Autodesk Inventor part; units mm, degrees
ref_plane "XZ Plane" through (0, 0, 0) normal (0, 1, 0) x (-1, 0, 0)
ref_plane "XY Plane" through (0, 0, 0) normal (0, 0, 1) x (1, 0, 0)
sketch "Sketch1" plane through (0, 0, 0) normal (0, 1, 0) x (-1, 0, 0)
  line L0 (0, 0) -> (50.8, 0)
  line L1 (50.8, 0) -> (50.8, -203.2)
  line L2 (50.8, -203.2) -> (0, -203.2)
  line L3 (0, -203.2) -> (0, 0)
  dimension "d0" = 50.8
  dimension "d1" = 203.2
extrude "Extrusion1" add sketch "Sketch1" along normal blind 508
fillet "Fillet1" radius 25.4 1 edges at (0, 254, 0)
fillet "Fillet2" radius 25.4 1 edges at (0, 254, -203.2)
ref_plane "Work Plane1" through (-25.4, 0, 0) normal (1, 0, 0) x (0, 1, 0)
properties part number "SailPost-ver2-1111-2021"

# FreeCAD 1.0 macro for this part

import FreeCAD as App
import Part
import Sketcher

V = App.Vector
Q = App.Units.Quantity


def edges_at(feature, points):
    """Names of the edges that pass closest to the given points."""
    edges = feature.Shape.Edges
    near = lambda p: min(range(len(edges)), key=lambda i: edges[i].distToShape(Part.Vertex(*p))[0])
    return sorted({f"Edge{near(p) + 1}" for p in points})


def add_polygon(sketch, points):
    """Adds a closed chain of lines whose ends are joined by coincident constraints."""
    first, n = sketch.GeometryCount, len(points)
    for a, b in zip(points, points[1:] + points[:1]):
        sketch.addGeometry(Part.LineSegment(App.Vector(*a, 0), App.Vector(*b, 0)), False)
    for i in range(n):
        sketch.addConstraint(Sketcher.Constraint("Coincident", first + i, 2, first + (i + 1) % n, 1))

doc = App.newDocument("Part")
params = doc.addObject("Spreadsheet::Sheet", "Params")
for row, (alias, value) in enumerate([
    ("sketch1_width", "2 in"),
    ("sketch1_height", "8 in"),
    ("pad1_length", "20 in"),
    ("fillet_radius", "1 in"),
    ("fillet2_radius", "1 in"),
], start=1):
    params.set(f"A{row}", alias)
    params.set(f"B{row}", "=" + value)
    params.setAlias(f"B{row}", alias)

body = doc.addObject("PartDesign::Body", "Body")

# Sketch on XZ plane
sketch1 = body.newObject("Sketcher::SketchObject", "Sketch")
sketch1.AttachmentSupport = (doc.getObject("XZ_Plane"), [""])
sketch1.MapMode = "FlatFace"
add_polygon(sketch1, [(-51, 0), (0, 0), (0, -203), (-51, -203)])  # lines 0-3
sketch1.addConstraint(Sketcher.Constraint("Horizontal", 0))
sketch1.addConstraint(Sketcher.Constraint("Vertical", 1))
sketch1.addConstraint(Sketcher.Constraint("Horizontal", 2))
sketch1.addConstraint(Sketcher.Constraint("Vertical", 3))
sketch1.addConstraint(Sketcher.Constraint("Coincident", 0, 2, -1, 1))
sketch1.addConstraint(Sketcher.Constraint("DistanceX", 0, 1, 0, 2, Q("2 in")))
sketch1.addConstraint(Sketcher.Constraint("DistanceY", 1, 2, 1, 1, Q("8 in")))
sketch1.setExpression("Constraints[9]", "Params.sketch1_width")
sketch1.setExpression("Constraints[10]", "Params.sketch1_height")
pad1 = body.newObject("PartDesign::Pad", "Pad")
pad1.Profile = sketch1
pad1.setExpression("Length", "Params.pad1_length")
pad1.Reversed = True
doc.recompute()

fillet = body.newObject("PartDesign::Fillet", "Fillet")
fillet.Base = (pad1, edges_at(pad1, [(0, 254, 0)]))
fillet.setExpression("Radius", "Params.fillet_radius")
doc.recompute()

fillet2 = body.newObject("PartDesign::Fillet", "Fillet001")
fillet2.Base = (fillet, edges_at(fillet, [(0, 254, -203.2)]))
fillet2.setExpression("Radius", "Params.fillet2_radius")

doc.recompute()
